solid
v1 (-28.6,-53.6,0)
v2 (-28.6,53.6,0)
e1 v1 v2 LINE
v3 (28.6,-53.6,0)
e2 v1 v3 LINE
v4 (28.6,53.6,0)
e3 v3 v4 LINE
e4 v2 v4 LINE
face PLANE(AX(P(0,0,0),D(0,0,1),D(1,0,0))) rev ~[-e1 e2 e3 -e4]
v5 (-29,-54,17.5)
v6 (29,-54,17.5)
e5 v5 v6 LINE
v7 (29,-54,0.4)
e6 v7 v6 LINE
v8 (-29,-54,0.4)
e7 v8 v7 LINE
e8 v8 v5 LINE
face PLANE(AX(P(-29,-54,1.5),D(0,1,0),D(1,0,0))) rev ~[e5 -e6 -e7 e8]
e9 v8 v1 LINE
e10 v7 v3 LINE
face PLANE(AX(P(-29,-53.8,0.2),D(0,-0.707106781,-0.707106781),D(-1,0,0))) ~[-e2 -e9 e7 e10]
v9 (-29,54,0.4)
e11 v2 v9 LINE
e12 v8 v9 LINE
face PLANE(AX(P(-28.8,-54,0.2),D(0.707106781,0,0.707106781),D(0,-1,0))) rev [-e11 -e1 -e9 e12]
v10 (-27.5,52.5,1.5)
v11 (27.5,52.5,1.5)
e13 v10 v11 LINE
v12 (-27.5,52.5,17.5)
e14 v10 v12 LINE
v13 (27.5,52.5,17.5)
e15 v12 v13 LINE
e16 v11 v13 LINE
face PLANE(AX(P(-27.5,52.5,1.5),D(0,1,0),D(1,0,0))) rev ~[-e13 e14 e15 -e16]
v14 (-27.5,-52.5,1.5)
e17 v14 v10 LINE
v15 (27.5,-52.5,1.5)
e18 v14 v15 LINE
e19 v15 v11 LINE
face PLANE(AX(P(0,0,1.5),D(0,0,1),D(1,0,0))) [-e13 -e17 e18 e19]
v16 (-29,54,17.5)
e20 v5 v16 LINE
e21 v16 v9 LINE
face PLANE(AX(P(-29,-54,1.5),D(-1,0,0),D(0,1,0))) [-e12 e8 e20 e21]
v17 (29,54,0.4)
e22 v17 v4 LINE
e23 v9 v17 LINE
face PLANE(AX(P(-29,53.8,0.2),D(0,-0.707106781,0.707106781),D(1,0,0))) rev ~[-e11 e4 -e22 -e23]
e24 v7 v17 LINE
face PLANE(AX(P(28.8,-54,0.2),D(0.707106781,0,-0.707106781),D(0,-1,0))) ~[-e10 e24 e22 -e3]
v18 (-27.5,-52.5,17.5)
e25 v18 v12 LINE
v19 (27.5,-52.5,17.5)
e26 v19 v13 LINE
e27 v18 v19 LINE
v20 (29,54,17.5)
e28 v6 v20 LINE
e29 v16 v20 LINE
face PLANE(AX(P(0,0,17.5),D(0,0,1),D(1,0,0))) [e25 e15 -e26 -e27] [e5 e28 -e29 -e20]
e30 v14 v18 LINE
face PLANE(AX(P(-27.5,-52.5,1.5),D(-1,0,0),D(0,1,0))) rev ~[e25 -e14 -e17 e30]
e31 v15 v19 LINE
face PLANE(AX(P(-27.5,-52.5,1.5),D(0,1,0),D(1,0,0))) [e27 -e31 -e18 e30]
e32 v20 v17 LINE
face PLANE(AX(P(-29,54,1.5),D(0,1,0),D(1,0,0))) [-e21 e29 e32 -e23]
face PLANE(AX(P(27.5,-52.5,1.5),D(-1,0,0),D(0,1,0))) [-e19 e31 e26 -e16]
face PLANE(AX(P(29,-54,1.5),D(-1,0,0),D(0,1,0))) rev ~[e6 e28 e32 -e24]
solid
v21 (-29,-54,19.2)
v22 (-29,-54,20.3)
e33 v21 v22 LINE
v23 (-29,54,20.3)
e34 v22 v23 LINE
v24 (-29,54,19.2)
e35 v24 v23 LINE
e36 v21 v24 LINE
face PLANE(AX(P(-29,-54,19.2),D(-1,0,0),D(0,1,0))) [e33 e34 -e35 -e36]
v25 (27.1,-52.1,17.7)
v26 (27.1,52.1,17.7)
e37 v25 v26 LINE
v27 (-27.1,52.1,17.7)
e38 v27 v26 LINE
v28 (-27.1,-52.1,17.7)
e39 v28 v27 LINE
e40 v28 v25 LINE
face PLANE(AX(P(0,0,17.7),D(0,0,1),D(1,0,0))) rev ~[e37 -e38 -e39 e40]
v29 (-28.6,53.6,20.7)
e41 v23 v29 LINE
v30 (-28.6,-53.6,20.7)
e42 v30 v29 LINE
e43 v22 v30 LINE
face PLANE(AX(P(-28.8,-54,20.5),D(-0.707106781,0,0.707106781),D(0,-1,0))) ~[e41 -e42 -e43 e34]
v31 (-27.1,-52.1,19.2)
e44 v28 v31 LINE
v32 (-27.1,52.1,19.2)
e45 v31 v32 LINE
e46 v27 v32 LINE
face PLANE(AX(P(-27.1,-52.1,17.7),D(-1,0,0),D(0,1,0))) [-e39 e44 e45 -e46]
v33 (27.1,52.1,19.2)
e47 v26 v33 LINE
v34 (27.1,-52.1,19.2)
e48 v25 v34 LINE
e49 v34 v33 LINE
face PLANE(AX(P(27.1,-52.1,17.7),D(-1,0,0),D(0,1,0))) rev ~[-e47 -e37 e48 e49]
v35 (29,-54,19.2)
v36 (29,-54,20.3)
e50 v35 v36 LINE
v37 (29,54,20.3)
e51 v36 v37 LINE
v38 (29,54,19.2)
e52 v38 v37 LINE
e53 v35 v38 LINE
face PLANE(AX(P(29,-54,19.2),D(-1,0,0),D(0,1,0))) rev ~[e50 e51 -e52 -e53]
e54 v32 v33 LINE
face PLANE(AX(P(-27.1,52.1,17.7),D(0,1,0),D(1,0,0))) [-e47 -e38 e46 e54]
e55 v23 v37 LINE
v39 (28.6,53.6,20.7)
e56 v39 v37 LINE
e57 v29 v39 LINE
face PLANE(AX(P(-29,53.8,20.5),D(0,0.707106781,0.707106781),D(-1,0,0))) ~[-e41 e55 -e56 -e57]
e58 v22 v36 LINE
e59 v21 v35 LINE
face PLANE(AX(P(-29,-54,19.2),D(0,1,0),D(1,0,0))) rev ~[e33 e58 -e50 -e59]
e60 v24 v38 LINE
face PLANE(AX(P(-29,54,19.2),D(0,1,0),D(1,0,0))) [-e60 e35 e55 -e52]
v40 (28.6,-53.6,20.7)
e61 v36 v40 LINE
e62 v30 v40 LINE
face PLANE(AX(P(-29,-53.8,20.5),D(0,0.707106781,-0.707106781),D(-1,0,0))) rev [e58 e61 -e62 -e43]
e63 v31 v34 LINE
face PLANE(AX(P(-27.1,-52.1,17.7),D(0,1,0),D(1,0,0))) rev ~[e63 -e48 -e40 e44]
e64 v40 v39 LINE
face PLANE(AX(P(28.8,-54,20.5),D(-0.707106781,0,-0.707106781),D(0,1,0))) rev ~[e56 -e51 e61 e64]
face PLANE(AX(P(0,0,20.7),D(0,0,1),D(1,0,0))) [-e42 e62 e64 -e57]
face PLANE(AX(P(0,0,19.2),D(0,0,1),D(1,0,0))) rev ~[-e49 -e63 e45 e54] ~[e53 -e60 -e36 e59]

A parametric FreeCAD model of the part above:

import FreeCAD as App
import Part
import Sketcher
Q = App.Units.Quantity


def edges_at(feature, points):
    """Names of the edges that pass closest to the given points."""
    edges = feature.Shape.Edges
    near = lambda p: min(range(len(edges)), key=lambda i: edges[i].distToShape(Part.Vertex(*p))[0])
    return sorted({f"Edge{near(p) + 1}" for p in points})


def add_polygon(sketch, points):
    """Adds a closed chain of lines whose ends are joined by coincident constraints."""
    first, n = sketch.GeometryCount, len(points)
    for a, b in zip(points, points[1:] + points[:1]):
        sketch.addGeometry(Part.LineSegment(App.Vector(*a, 0), App.Vector(*b, 0)), False)
    for i in range(n):
        sketch.addConstraint(Sketcher.Constraint("Coincident", first + i, 2, first + (i + 1) % n, 1))

doc = App.newDocument("Part")
body = doc.addObject("PartDesign::Body", "Body")

# Sketch on XY plane
sketch1 = body.newObject("Sketcher::SketchObject", "Sketch")
sketch1.AttachmentSupport = (doc.getObject("XY_Plane"), [""])
sketch1.MapMode = "FlatFace"
add_polygon(sketch1, [(-29, 54), (-29, -54), (29, -54), (29, 54)])  # lines 0-3
sketch1.addConstraint([
    Sketcher.Constraint("Vertical", 0),
    Sketcher.Constraint("Horizontal", 1),
    Sketcher.Constraint("Vertical", 2),
    Sketcher.Constraint("Horizontal", 3),
    Sketcher.Constraint("Symmetric", 0, 2, 2, 2, -1, 1),
    Sketcher.Constraint("DistanceX", 1, 1, 1, 2, Q("58 mm")),
    Sketcher.Constraint("DistanceY", 0, 2, 0, 1, Q("108 mm")),
])
pad1 = body.newObject("PartDesign::Pad", "Pad")
pad1.Profile = sketch1
pad1.Length = 1.5

# Sketch on XY plane
sketch2 = body.newObject("Sketcher::SketchObject", "Sketch001")
sketch2.AttachmentSupport = (doc.getObject("XY_Plane"), [""])
sketch2.MapMode = "FlatFace"
sketch2.AttachmentOffset = App.Placement(App.Vector(0, 0, 1.5), App.Rotation())
add_polygon(sketch2, [(-29, 54), (-29, -54), (29, -54), (29, 54)])  # lines 0-3
add_polygon(sketch2, [(27.5, -52.5), (-27.5, -52.5), (-27.5, 52.5), (27.5, 52.5)])  # lines 4-7
sketch2.addConstraint([
    Sketcher.Constraint("Vertical", 0),
    Sketcher.Constraint("Horizontal", 1),
    Sketcher.Constraint("Vertical", 2),
    Sketcher.Constraint("Horizontal", 3),
    Sketcher.Constraint("Horizontal", 4),
    Sketcher.Constraint("Vertical", 5),
    Sketcher.Constraint("Horizontal", 6),
    Sketcher.Constraint("Vertical", 7),
    Sketcher.Constraint("Symmetric", 0, 2, 2, 2, -1, 1),
    Sketcher.Constraint("Symmetric", 4, 2, 6, 2, -1, 1),
    Sketcher.Constraint("DistanceX", 1, 1, 1, 2, Q("58 mm")),
    Sketcher.Constraint("DistanceX", 4, 2, 4, 1, Q("55 mm")),
    Sketcher.Constraint("DistanceY", 0, 2, 0, 1, Q("108 mm")),
    Sketcher.Constraint("DistanceY", 5, 1, 5, 2, Q("105 mm")),
])
pad2 = body.newObject("PartDesign::Pad", "Pad001")
pad2.Profile = sketch2
pad2.Length = 16
doc.recompute()

chamfer = body.newObject("PartDesign::Chamfer", "Chamfer")
chamfer.Base = (pad2, edges_at(pad2, [
    (0, -54, 0),
    (29, 0, 0),
    (0, 54, 0),
    (-29, 0, 0),
]))
chamfer.Size = 0.4
body2 = doc.addObject("PartDesign::Body", "Body001")

# Sketch on XY plane
sketch3 = body2.newObject("Sketcher::SketchObject", "Sketch002")
sketch3.AttachmentSupport = (doc.getObject("XY_Plane001"), [""])
sketch3.MapMode = "FlatFace"
sketch3.AttachmentOffset = App.Placement(App.Vector(0, 0, 17.7), App.Rotation())
add_polygon(sketch3, [(-27.1, 52.1), (-27.1, -52.1), (27.1, -52.1), (27.1, 52.1)])  # lines 0-3
sketch3.addConstraint([
    Sketcher.Constraint("Vertical", 0),
    Sketcher.Constraint("Horizontal", 1),
    Sketcher.Constraint("Vertical", 2),
    Sketcher.Constraint("Horizontal", 3),
    Sketcher.Constraint("Symmetric", 0, 2, 2, 2, -1, 1),
    Sketcher.Constraint("DistanceX", 1, 1, 1, 2, Q("54.2 mm")),
    Sketcher.Constraint("DistanceY", 0, 2, 0, 1, Q("104.2 mm")),
])
pad3 = body2.newObject("PartDesign::Pad", "Pad002")
pad3.Profile = sketch3
pad3.Length = 1.5

# Sketch on XY plane
sketch4 = body2.newObject("Sketcher::SketchObject", "Sketch003")
sketch4.AttachmentSupport = (doc.getObject("XY_Plane001"), [""])
sketch4.MapMode = "FlatFace"
sketch4.AttachmentOffset = App.Placement(App.Vector(0, 0, 19.2), App.Rotation())
add_polygon(sketch4, [(-29, 54), (-29, -54), (29, -54), (29, 54)])  # lines 0-3
sketch4.addConstraint([
    Sketcher.Constraint("Vertical", 0),
    Sketcher.Constraint("Horizontal", 1),
    Sketcher.Constraint("Vertical", 2),
    Sketcher.Constraint("Horizontal", 3),
    Sketcher.Constraint("Symmetric", 0, 2, 2, 2, -1, 1),
    Sketcher.Constraint("DistanceX", 1, 1, 1, 2, Q("58 mm")),
    Sketcher.Constraint("DistanceY", 0, 2, 0, 1, Q("108 mm")),
])
pad4 = body2.newObject("PartDesign::Pad", "Pad003")
pad4.Profile = sketch4
pad4.Length = 1.5
doc.recompute()

chamfer2 = body2.newObject("PartDesign::Chamfer", "Chamfer001")
chamfer2.Base = (pad4, edges_at(pad4, [
    (0, -54, 20.7),
    (29, 0, 20.7),
    (0, 54, 20.7),
    (-29, 0, 20.7),
]))
chamfer2.Size = 0.4

doc.recompute()
